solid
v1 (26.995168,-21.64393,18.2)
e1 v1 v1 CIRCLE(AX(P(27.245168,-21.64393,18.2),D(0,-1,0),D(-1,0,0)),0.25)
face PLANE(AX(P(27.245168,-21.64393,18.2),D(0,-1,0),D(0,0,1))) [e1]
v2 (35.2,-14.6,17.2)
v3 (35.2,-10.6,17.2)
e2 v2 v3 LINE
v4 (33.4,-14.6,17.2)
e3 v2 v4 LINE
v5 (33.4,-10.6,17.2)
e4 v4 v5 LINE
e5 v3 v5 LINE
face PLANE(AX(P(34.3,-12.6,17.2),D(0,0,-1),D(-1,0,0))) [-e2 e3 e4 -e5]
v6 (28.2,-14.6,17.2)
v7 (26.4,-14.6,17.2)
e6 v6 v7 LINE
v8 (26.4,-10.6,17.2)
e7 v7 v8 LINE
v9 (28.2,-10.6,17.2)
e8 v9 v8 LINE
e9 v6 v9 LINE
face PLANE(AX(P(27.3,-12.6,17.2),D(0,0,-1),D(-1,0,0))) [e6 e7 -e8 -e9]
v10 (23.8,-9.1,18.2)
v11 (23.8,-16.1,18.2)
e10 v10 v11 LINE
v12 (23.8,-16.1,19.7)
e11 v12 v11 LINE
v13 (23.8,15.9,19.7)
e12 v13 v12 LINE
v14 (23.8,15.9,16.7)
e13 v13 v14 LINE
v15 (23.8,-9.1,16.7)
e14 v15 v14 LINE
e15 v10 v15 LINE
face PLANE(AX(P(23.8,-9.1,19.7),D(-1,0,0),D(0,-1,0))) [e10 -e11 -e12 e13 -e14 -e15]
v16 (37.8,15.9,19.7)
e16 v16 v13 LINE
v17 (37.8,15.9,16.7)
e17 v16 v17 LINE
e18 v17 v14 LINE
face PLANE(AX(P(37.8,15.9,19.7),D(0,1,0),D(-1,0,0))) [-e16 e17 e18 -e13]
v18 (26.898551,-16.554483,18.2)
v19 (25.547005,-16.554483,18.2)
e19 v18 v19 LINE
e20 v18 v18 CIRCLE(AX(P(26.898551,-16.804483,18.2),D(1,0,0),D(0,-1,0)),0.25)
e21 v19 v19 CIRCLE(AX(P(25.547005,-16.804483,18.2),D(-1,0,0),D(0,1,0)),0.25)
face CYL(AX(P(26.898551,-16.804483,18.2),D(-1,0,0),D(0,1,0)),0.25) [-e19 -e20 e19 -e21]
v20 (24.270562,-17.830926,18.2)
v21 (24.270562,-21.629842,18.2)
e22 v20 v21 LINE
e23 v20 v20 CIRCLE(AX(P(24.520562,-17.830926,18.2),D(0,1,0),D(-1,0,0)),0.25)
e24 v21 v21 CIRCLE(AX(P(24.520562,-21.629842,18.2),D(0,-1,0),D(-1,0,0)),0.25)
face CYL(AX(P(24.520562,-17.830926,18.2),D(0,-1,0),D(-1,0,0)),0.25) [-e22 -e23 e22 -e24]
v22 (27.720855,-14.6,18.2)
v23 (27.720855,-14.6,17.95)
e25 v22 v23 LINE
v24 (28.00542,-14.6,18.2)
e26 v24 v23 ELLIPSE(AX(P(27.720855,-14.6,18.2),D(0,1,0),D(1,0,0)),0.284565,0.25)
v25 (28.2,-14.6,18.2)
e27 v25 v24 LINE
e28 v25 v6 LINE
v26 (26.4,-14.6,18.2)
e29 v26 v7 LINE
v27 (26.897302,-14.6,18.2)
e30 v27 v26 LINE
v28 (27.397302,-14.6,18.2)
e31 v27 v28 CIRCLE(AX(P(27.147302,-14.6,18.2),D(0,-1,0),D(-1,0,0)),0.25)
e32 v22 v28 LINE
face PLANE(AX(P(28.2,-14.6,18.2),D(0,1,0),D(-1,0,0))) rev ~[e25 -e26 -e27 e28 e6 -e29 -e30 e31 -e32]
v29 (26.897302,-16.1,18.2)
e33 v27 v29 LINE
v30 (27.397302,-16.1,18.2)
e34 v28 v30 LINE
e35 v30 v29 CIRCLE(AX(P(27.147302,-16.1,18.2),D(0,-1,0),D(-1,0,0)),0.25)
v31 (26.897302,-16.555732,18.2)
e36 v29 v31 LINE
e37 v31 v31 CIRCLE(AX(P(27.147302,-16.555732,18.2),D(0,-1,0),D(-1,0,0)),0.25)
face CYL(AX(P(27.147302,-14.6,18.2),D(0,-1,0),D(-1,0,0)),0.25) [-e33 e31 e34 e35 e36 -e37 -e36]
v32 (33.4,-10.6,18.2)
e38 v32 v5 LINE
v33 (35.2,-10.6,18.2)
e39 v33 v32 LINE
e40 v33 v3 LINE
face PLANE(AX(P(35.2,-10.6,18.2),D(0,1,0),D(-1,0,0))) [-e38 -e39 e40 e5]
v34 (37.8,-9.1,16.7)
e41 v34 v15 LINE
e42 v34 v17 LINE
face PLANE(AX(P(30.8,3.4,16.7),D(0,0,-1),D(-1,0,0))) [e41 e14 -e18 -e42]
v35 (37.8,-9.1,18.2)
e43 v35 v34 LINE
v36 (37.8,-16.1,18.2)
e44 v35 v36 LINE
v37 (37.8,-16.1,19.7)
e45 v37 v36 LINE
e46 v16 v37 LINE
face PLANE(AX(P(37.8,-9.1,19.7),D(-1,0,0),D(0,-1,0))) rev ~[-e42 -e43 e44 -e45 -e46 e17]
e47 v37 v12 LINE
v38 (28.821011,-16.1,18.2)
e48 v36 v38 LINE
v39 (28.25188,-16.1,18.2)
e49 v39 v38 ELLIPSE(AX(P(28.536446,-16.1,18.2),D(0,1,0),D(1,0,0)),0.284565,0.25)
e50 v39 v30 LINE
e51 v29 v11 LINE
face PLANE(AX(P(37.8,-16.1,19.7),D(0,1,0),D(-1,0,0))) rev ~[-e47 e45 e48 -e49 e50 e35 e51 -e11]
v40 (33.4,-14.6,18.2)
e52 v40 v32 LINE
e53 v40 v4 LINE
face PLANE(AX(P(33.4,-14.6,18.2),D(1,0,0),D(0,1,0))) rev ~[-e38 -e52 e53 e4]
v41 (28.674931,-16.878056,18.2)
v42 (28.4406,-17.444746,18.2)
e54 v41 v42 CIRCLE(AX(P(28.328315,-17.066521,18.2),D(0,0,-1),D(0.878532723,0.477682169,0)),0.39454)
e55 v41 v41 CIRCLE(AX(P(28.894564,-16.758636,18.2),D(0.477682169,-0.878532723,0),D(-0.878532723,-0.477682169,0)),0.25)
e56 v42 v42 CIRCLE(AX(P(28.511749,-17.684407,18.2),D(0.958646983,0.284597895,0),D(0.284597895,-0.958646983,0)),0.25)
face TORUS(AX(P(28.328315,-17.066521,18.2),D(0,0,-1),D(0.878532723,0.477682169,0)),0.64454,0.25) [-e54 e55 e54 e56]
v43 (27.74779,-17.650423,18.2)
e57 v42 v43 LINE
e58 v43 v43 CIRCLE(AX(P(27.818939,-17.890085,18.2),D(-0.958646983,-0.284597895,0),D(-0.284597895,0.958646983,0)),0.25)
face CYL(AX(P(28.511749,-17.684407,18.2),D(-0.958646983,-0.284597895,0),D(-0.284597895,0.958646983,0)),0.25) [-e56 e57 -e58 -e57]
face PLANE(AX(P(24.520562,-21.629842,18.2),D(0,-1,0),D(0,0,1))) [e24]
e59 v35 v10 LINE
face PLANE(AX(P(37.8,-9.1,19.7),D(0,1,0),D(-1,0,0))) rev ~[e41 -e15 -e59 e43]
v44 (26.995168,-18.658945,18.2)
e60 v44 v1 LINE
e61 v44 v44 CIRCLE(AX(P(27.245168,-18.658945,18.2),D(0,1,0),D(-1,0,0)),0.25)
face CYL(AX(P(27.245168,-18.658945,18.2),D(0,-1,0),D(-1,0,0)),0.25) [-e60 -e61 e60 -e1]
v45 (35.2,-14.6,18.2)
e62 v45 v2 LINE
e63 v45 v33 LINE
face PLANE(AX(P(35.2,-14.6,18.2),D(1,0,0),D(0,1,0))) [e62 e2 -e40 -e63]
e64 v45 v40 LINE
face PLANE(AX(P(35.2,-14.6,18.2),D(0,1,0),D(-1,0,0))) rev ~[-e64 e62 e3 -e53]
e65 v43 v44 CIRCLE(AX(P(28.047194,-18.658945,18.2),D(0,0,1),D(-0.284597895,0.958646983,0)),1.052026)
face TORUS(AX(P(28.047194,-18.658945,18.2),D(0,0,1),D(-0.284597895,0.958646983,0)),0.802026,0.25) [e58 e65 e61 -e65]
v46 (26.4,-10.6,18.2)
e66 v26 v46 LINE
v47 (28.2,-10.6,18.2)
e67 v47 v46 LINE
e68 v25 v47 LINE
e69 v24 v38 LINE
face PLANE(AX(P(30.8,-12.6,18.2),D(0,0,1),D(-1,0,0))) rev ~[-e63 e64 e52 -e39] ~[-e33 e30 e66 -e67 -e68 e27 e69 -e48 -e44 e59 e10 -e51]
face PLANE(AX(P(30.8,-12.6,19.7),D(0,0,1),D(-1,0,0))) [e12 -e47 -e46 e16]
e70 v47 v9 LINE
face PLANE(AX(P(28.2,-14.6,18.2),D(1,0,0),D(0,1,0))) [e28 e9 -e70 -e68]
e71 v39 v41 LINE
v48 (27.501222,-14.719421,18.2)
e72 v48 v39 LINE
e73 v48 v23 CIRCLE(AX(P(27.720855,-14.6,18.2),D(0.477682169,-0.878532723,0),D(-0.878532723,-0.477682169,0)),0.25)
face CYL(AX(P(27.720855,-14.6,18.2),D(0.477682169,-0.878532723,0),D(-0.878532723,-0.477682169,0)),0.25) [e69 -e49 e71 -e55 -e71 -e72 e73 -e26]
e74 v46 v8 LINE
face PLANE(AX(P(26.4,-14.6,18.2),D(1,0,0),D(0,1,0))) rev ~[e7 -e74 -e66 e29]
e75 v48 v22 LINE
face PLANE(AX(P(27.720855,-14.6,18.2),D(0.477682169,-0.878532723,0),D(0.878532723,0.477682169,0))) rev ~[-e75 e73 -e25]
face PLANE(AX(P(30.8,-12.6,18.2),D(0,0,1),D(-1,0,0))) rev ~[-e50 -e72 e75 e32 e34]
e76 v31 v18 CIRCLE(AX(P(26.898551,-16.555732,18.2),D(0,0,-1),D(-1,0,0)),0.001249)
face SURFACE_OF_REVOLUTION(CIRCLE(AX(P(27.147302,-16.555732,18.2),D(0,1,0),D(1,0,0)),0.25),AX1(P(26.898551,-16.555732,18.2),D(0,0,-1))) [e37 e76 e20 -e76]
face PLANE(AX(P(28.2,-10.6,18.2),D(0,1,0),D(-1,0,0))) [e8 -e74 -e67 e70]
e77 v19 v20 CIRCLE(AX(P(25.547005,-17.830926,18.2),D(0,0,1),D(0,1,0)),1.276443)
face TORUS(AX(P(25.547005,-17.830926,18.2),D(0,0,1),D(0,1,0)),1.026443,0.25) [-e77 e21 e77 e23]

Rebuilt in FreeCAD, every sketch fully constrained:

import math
import FreeCAD as App
import Part
import Sketcher

V = App.Vector


def add_polygon(sketch, points):
    """Adds a closed chain of lines whose ends are joined by coincident constraints."""
    first, n = sketch.GeometryCount, len(points)
    for a, b in zip(points, points[1:] + points[:1]):
        sketch.addGeometry(Part.LineSegment(App.Vector(*a, 0), App.Vector(*b, 0)), False)
    for i in range(n):
        sketch.addConstraint(Sketcher.Constraint("Coincident", first + i, 2, first + (i + 1) % n, 1))

doc = App.newDocument("Part")
params = doc.addObject("Spreadsheet::Sheet", "Params")
for row, (alias, value) in enumerate([
    ("sketch1_width", "14 mm"),
    ("sketch1_height", "25 mm"),
    ("pad1_length", "3 mm"),
    ("sketch2_width", "14 mm"),
    ("sketch2_height", "7 mm"),
    ("pad2_length", "1.5 mm"),
    ("sketch3_height", "4 mm"),
    ("sketch3_width", "1.8 mm"),
    ("pad3_length", "1 mm"),
    ("sketch4_diameter", "0.5 mm"),
    ("sketch6_diameter", "0.5 mm"),
], start=1):
    params.set(f"A{row}", alias)
    params.set(f"B{row}", "=" + value)
    params.setAlias(f"B{row}", alias)

body = doc.addObject("PartDesign::Body", "Body")

# Sketch on XY plane
sketch1 = doc.addObject("Sketcher::SketchObject", "Sketch")
body.addObject(sketch1)
sketch1.AttachmentSupport = (doc.XY_Plane, [""])
sketch1.MapMode = "FlatFace"
add_polygon(sketch1, [(-7, 12), (-7, -12), (7, -12), (7, 12)])  # lines 0-3
sketch1.addConstraint([
    Sketcher.Constraint("Vertical", 0),
    Sketcher.Constraint("Horizontal", 1),
    Sketcher.Constraint("Vertical", 2),
    Sketcher.Constraint("Horizontal", 3),
    Sketcher.Constraint("Symmetric", 0, 2, 2, 2, -1, 1),
    Sketcher.Constraint("DistanceX", 1, 1, 1, 2, 14.0),
    Sketcher.Constraint("DistanceY", 0, 2, 0, 1, 25.0),
])
sketch1.setExpression("Constraints[9]", "Params.sketch1_width")
sketch1.setExpression("Constraints[10]", "Params.sketch1_height")
pad1 = doc.addObject("PartDesign::Pad", "Pad")
body.addObject(pad1)
pad1.Profile = sketch1
pad1.setExpression("Length", "Params.pad1_length")

# Sketch on XY plane
sketch2 = doc.addObject("Sketcher::SketchObject", "Sketch001")
body.addObject(sketch2)
sketch2.AttachmentSupport = (doc.XY_Plane, [""])
sketch2.MapMode = "FlatFace"
add_polygon(sketch2, [(-7, -20), (-7, -12), (7, -12), (7, -20)])  # lines 0-3
sketch2.addConstraint([
    Sketcher.Constraint("Vertical", 0),
    Sketcher.Constraint("Horizontal", 1),
    Sketcher.Constraint("Vertical", 2),
    Sketcher.Constraint("Horizontal", 3),
    Sketcher.Constraint("DistanceX", 1, 1, 1, 2, 14.0),
    Sketcher.Constraint("DistanceY", 0, 1, 0, 2, 7.0),
    Sketcher.Constraint("DistanceX", 0, 2, -1, 1, 7.0),
    Sketcher.Constraint("DistanceY", 0, 2, -1, 1, 12.5),
])
sketch2.setExpression("Constraints[8]", "Params.sketch2_width")
sketch2.setExpression("Constraints[9]", "Params.sketch2_height")
pad2 = doc.addObject("PartDesign::Pad", "Pad001")
body.addObject(pad2)
pad2.Profile = sketch2
pad2.setExpression("Length", "Params.pad2_length")

# Sketch on XY plane
sketch3 = doc.addObject("Sketcher::SketchObject", "Sketch002")
body.addObject(sketch3)
sketch3.AttachmentSupport = (doc.XY_Plane, [""])
sketch3.MapMode = "FlatFace"
sketch3.AttachmentOffset = App.Placement(V(0, 0, 1.5), App.Rotation())
add_polygon(sketch3, [(-4.4, -14), (-4.4, -18), (-2.6, -18), (-2.6, -14)])  # lines 0-3
add_polygon(sketch3, [(2.6, -14), (2.6, -18), (4.4, -18), (4.4, -14)])  # lines 4-7
sketch3.addConstraint([
    Sketcher.Constraint("Vertical", 0),
    Sketcher.Constraint("Horizontal", 1),
    Sketcher.Constraint("Vertical", 2),
    Sketcher.Constraint("Horizontal", 3),
    Sketcher.Constraint("Vertical", 4),
    Sketcher.Constraint("Horizontal", 5),
    Sketcher.Constraint("Vertical", 6),
    Sketcher.Constraint("Horizontal", 7),
    Sketcher.Constraint("Symmetric", 1, 2, 4, 2, -2),
    Sketcher.Constraint("Symmetric", 3, 2, 6, 2, -2),
    Sketcher.Constraint("DistanceY", 0, 2, 0, 1, 4.0),
    Sketcher.Constraint("DistanceX", 1, 1, 1, 2, 1.8),
    Sketcher.Constraint("DistanceY", 0, 2, -1, 1, 18.0),
    Sketcher.Constraint("DistanceX", 0, 2, 4, 2, 7.0),
])
sketch3.setExpression("Constraints[18]", "Params.sketch3_height")
sketch3.setExpression("Constraints[19]", "Params.sketch3_width")
pad3 = doc.addObject("PartDesign::Pad", "Pad002")
body.addObject(pad3)
pad3.Profile = sketch3
pad3.setExpression("Length", "Params.pad3_length")

# Sketch on XZ plane
sketch4 = doc.addObject("Sketcher::SketchObject", "Sketch003")
body.addObject(sketch4)
sketch4.AttachmentSupport = (doc.XZ_Plane, [""])
sketch4.MapMode = "FlatFace"
sketch4.AttachmentOffset = App.Placement(V(0, 0, 25.029842), App.Rotation())
sketch4.addGeometry(Part.Circle(V(6.28, 1.5, 0), V(0, 0, 1), 0.25), False)
sketch4.addConstraint([
    Sketcher.Constraint("Diameter", 0, 0.5),
    Sketcher.Constraint("DistanceY", -1, 1, 0, 3, 1.5),
    Sketcher.Constraint("DistanceX", -1, 1, 0, 3, 6.279438),
])
sketch4.setExpression("Constraints[0]", "Params.sketch4_diameter")

# Sketch on XY plane
sketch5 = doc.addObject("Sketcher::SketchObject", "Sketch004")
body.addObject(sketch5)
sketch5.AttachmentSupport = (doc.XY_Plane, [""])
sketch5.MapMode = "FlatFace"
sketch5.AttachmentOffset = App.Placement(V(0, 0, 1.5), App.Rotation())
sketch5.addGeometry([
    Part.LineSegment(V(3.65, -18, 0), V(3.65, -19.96, 0)),  # 0
    Part.ArcOfCircle(Part.Circle(V(3.9, -19.96, 0), V(0, 0, 1), 0.25), math.radians(180), math.radians(270)),  # 1
    Part.LineSegment(V(3.9, -20.2, 0), V(5.25, -20.2, 0)),  # 2
    Part.ArcOfCircle(Part.Circle(V(5.25, -21.23, 0), V(0, 0, 1), 1.03), math.radians(0), math.radians(90)),  # 3
    Part.LineSegment(V(6.28, -21.23, 0), V(6.28, -25.03, 0)),  # 4
], False)
sketch5.addConstraint([
    Sketcher.Constraint("Tangent", 0, 2, 1, 1),
    Sketcher.Constraint("Tangent", 1, 2, 2, 1),
    Sketcher.Constraint("Tangent", 2, 2, 3, 2),
    Sketcher.Constraint("Tangent", 3, 1, 4, 1),
    Sketcher.Constraint("Vertical", 0),
    Sketcher.Constraint("Horizontal", 2),
    Sketcher.Constraint("Vertical", 4),
    Sketcher.Constraint("DistanceY", 0, 1, -1, 1, 18.0),
    Sketcher.Constraint("Radius", 1, 0.248751),
    Sketcher.Constraint("Radius", 3, 1.026443),
    Sketcher.Constraint("DistanceX", -1, 1, 0, 1, 3.652698),
    Sketcher.Constraint("DistanceX", 2, 1, 2, 2, 1.351546),
    Sketcher.Constraint("DistanceY", 0, 2, 0, 1, 1.955732),
    Sketcher.Constraint("DistanceY", 4, 2, 4, 1, 3.798916),
])
doc.recompute()

additivepipe = doc.addObject("PartDesign::AdditivePipe", "AdditivePipe")
body.addObject(additivepipe)
additivepipe.Profile = sketch4
additivepipe.Spine = (sketch5, ["Edge1", "Edge2", "Edge3", "Edge4", "Edge5"])

# Sketch on XZ plane
sketch6 = doc.addObject("Sketcher::SketchObject", "Sketch005")
body.addObject(sketch6)
sketch6.AttachmentSupport = (doc.XZ_Plane, [""])
sketch6.MapMode = "FlatFace"
sketch6.AttachmentOffset = App.Placement(V(0, 0, 25.04393), App.Rotation())
sketch6.addGeometry(Part.Circle(V(3.55, 1.5, 0), V(0, 0, 1), 0.25), False)
sketch6.addConstraint([
    Sketcher.Constraint("Diameter", 0, 0.5),
    Sketcher.Constraint("DistanceY", -1, 1, 0, 3, 1.5),
    Sketcher.Constraint("DistanceX", -1, 1, 0, 3, 3.554832),
])
sketch6.setExpression("Constraints[0]", "Params.sketch6_diameter")

# Sketch on XY plane
sketch7 = doc.addObject("Sketcher::SketchObject", "Sketch006")
body.addObject(sketch7)
sketch7.AttachmentSupport = (doc.XY_Plane, [""])
sketch7.MapMode = "FlatFace"
sketch7.AttachmentOffset = App.Placement(V(0, 0, 1.5), App.Rotation())
sketch7.addGeometry([
    Part.LineSegment(V(3.1, -18, 0), V(1.9, -20.2, 0)),  # 0
    Part.ArcOfCircle(Part.Circle(V(2.5, -20.5, 0), V(0, 0, 1), 0.6), math.radians(151), math.radians(253)),  # 1
    Part.LineSegment(V(2.3, -21.1, 0), V(3, -21.3, 0)),  # 2
    Part.ArcOfCircle(Part.Circle(V(2.8, -22.1, 0), V(0, 0, 1), 0.8), math.radians(0), math.radians(73)),  # 3
    Part.LineSegment(V(3.6, -22.1, 0), V(3.6, -25, 0)),  # 4
], False)
sketch7.addConstraint([
    Sketcher.Constraint("Tangent", 0, 2, 1, 1),
    Sketcher.Constraint("Tangent", 1, 2, 2, 1),
    Sketcher.Constraint("Tangent", 2, 2, 3, 2),
    Sketcher.Constraint("Tangent", 3, 1, 4, 1),
    Sketcher.Constraint("Vertical", 4),
    Sketcher.Constraint("DistanceY", 0, 1, -1, 1, 18.0),
    Sketcher.Constraint("Radius", 1, 0.64454),
    Sketcher.Constraint("Radius", 3, 0.802026),
    Sketcher.Constraint("Distance", 0, 2.457092),
    Sketcher.Constraint("DistanceY", 4, 2, 4, 1, 2.984985),
    Sketcher.Constraint("DistanceY", 1, 3, -1, 1, 20.466521),
    Sketcher.Constraint("DistanceX", -1, 1, 1, 2, 2.288251),
    Sketcher.Constraint("DistanceX", -1, 1, 2, 2, 2.981061),
    Sketcher.Constraint("DistanceY", 4, 2, -1, 1, 25.04393),
])
doc.recompute()

additivepipe2 = doc.addObject("PartDesign::AdditivePipe", "AdditivePipe001")
body.addObject(additivepipe2)
additivepipe2.Profile = sketch6
additivepipe2.Spine = (sketch7, ["Edge1", "Edge2", "Edge3", "Edge4", "Edge5"])
body2 = doc.addObject("PartDesign::Body", "Body001")
doc.recompute()

body.Placement = App.Placement(V(30.8, 3.4, 19.7), App.Rotation(V(0, 1, 0), 180))
boolean = doc.addObject("PartDesign::Boolean", "Boolean")
body2.addObject(boolean)
boolean.Type = "Fuse"
boolean.addObjects([body])

doc.recompute()
